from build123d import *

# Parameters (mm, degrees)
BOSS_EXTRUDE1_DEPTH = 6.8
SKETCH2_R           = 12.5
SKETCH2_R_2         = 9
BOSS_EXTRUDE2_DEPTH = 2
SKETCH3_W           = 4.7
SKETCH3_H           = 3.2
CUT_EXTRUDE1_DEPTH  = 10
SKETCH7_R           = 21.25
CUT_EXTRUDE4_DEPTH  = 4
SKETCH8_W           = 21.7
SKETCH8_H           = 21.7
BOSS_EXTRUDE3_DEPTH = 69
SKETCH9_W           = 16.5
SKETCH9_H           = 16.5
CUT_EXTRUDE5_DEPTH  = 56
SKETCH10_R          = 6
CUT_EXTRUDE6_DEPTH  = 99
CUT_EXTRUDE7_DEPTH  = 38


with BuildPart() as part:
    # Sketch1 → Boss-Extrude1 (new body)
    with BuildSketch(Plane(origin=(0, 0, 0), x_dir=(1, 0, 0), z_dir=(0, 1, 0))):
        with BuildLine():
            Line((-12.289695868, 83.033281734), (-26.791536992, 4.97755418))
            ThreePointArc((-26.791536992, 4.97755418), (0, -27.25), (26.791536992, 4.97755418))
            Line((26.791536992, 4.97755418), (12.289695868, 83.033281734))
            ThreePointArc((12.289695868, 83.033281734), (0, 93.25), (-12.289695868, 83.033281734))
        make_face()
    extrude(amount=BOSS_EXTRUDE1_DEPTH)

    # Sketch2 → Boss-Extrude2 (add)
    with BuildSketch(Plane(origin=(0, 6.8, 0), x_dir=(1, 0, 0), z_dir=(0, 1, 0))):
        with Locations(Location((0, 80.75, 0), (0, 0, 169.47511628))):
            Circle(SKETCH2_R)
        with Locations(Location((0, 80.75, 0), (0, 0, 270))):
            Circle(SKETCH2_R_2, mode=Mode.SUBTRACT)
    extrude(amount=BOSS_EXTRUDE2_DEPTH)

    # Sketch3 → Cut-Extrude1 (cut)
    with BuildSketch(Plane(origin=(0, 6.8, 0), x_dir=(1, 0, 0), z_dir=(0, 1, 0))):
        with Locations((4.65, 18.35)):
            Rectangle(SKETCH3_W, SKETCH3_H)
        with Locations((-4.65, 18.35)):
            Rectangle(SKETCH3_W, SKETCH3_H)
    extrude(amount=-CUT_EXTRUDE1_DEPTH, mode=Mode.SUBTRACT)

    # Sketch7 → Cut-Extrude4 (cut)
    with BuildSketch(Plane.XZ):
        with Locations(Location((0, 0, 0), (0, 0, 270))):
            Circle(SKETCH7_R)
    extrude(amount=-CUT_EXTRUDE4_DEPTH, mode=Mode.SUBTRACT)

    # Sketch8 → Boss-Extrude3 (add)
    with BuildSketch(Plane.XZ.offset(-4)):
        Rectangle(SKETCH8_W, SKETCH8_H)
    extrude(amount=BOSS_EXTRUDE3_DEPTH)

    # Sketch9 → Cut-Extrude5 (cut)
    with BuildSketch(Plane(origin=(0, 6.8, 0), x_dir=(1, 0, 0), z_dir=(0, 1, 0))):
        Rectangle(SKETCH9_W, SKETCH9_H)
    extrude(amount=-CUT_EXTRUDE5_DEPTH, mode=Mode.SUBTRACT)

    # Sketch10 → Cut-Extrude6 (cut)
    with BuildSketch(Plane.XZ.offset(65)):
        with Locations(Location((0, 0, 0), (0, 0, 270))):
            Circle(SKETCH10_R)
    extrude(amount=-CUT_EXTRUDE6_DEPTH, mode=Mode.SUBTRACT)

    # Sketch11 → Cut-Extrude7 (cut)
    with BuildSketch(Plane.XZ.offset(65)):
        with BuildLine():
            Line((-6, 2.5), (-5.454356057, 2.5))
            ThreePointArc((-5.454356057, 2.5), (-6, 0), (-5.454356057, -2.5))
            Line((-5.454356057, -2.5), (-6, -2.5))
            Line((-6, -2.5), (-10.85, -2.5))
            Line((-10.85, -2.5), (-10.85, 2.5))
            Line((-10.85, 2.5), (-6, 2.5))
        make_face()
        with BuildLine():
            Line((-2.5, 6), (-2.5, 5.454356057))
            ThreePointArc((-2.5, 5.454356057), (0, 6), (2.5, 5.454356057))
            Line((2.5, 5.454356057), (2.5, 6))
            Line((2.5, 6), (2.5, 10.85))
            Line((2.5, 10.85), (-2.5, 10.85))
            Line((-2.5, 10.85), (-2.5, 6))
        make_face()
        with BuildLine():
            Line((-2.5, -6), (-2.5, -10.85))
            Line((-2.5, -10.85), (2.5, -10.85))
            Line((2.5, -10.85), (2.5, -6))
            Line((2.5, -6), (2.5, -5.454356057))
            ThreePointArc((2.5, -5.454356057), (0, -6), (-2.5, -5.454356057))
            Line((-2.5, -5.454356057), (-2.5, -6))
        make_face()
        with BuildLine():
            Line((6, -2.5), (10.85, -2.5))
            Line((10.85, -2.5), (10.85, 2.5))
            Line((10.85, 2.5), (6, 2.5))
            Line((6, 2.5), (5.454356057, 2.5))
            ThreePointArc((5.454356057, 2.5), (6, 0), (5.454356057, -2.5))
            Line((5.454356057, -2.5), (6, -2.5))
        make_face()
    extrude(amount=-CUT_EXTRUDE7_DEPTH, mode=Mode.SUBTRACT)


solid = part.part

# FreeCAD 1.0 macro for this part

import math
import FreeCAD as App
import Part
import Sketcher


def add_polygon(sketch, points):
    """Adds a closed chain of lines whose ends are joined by coincident constraints."""
    first, n = sketch.GeometryCount, len(points)
    for a, b in zip(points, points[1:] + points[:1]):
        sketch.addGeometry(Part.LineSegment(App.Vector(*a, 0), App.Vector(*b, 0)), False)
    for i in range(n):
        sketch.addConstraint(Sketcher.Constraint("Coincident", first + i, 2, first + (i + 1) % n, 1))

doc = App.newDocument("Part")
body = doc.addObject("PartDesign::Body", "Body")

# Sketch on XZ plane
sketch1 = body.newObject("Sketcher::SketchObject", "Sketch")
sketch1.AttachmentSupport = (doc.getObject("XZ_Plane"), [""])
sketch1.MapMode = "FlatFace"
sketch1.addGeometry([
    Part.LineSegment(App.Vector(-12, -83, 0), App.Vector(-27, -5, 0)),
    Part.ArcOfCircle(Part.Circle(App.Vector(0, 0, 0), App.Vector(0, 0, 1), 27), math.radians(-11), math.radians(191)),
    Part.LineSegment(App.Vector(27, -5, 0), App.Vector(12, -83, 0)),
    Part.ArcOfCircle(Part.Circle(App.Vector(0, -81, 0), App.Vector(0, 0, 1), 12), math.radians(-169), math.radians(-11)),
], False)
sketch1.addConstraint([
    Sketcher.Constraint("Tangent", 0, 2, 1, 2),
    Sketcher.Constraint("Tangent", 1, 1, 2, 1),
    Sketcher.Constraint("Tangent", 2, 2, 3, 2),
    Sketcher.Constraint("Tangent", 3, 1, 0, 1),
    Sketcher.Constraint("Coincident", 1, 3, -1, 1),
    Sketcher.Constraint("PointOnObject", 3, 3, -2),
    Sketcher.Constraint("Radius", 3, 12.5),
    Sketcher.Constraint("Radius", 1, 27.25),
    Sketcher.Constraint("DistanceY", 3, 3, -1, 1, 80.75),
])
pad1 = body.newObject("PartDesign::Pad", "Pad")
pad1.Profile = sketch1
pad1.Length = 6.8
pad1.Reversed = True

# Sketch on XZ plane
sketch2 = body.newObject("Sketcher::SketchObject", "Sketch001")
sketch2.AttachmentSupport = (doc.getObject("XZ_Plane"), [""])
sketch2.MapMode = "FlatFace"
sketch2.AttachmentOffset = App.Placement(App.Vector(0, 0, -6.8), App.Rotation())
sketch2.addGeometry([
    Part.Circle(App.Vector(0, -81, 0), App.Vector(0, 0, 1), 12),
    Part.Circle(App.Vector(0, -81, 0), App.Vector(0, 0, 1), 9),
], False)
sketch2.addConstraint([
    Sketcher.Constraint("Coincident", 1, 3, 0, 3),
    Sketcher.Constraint("PointOnObject", 0, 3, -2),
    Sketcher.Constraint("Diameter", 0, 25.0),
    Sketcher.Constraint("Diameter", 1, 18.0),
    Sketcher.Constraint("DistanceY", 0, 3, -1, 1, 80.75),
])
pad2 = body.newObject("PartDesign::Pad", "Pad001")
pad2.Profile = sketch2
pad2.Length = 2
pad2.Reversed = True

# Sketch on XZ plane
sketch3 = body.newObject("Sketcher::SketchObject", "Sketch002")
sketch3.AttachmentSupport = (doc.getObject("XZ_Plane"), [""])
sketch3.MapMode = "FlatFace"
sketch3.AttachmentOffset = App.Placement(App.Vector(0, 0, -6.8), App.Rotation())
add_polygon(sketch3, [(2.3, -19.9), (2.3, -16.8), (7, -16.8), (7, -19.9)])  # lines 0-3
add_polygon(sketch3, [(-7, -19.9), (-7, -16.8), (-2.3, -16.8), (-2.3, -19.9)])  # lines 4-7
sketch3.addConstraint([
    Sketcher.Constraint("Vertical", 0),
    Sketcher.Constraint("Horizontal", 1),
    Sketcher.Constraint("Vertical", 2),
    Sketcher.Constraint("Horizontal", 3),
    Sketcher.Constraint("Vertical", 4),
    Sketcher.Constraint("Horizontal", 5),
    Sketcher.Constraint("Vertical", 6),
    Sketcher.Constraint("Horizontal", 7),
    Sketcher.Constraint("Symmetric", 1, 2, 4, 2, -2),
    Sketcher.Constraint("Symmetric", 3, 2, 6, 2, -2),
    Sketcher.Constraint("DistanceX", 1, 1, 1, 2, 4.7),
    Sketcher.Constraint("DistanceY", 0, 1, 0, 2, 3.2),
    Sketcher.Constraint("DistanceX", -1, 1, 1, 2, 7.0),
    Sketcher.Constraint("DistanceY", 0, 2, -1, 1, 16.75),
])
pocket1 = body.newObject("PartDesign::Pocket", "Pocket")
pocket1.Profile = sketch3
pocket1.Length = 10
pocket1.Reversed = True

# Sketch on XZ plane
sketch4 = body.newObject("Sketcher::SketchObject", "Sketch003")
sketch4.AttachmentSupport = (doc.getObject("XZ_Plane"), [""])
sketch4.MapMode = "FlatFace"
sketch4.addGeometry(Part.Circle(App.Vector(0, 0, 0), App.Vector(0, 0, 1), 21), False)
sketch4.addConstraint([
    Sketcher.Constraint("Coincident", 0, 3, -1, 1),
    Sketcher.Constraint("Diameter", 0, 42.5),
])
pocket2 = body.newObject("PartDesign::Pocket", "Pocket001")
pocket2.Profile = sketch4
pocket2.Length = 4

# Sketch on XZ plane
sketch5 = body.newObject("Sketcher::SketchObject", "Sketch004")
sketch5.AttachmentSupport = (doc.getObject("XZ_Plane"), [""])
sketch5.MapMode = "FlatFace"
sketch5.AttachmentOffset = App.Placement(App.Vector(0, 0, -4), App.Rotation())
add_polygon(sketch5, [(-11, 11), (-11, -11), (11, -11), (11, 11)])  # lines 0-3
sketch5.addConstraint([
    Sketcher.Constraint("Vertical", 0),
    Sketcher.Constraint("Horizontal", 1),
    Sketcher.Constraint("Vertical", 2),
    Sketcher.Constraint("Horizontal", 3),
    Sketcher.Constraint("Symmetric", 0, 2, 2, 2, -1, 1),
    Sketcher.Constraint("Equal", 3, 0),
    Sketcher.Constraint("DistanceX", 1, 1, 1, 2, 21.7),
])
pad3 = body.newObject("PartDesign::Pad", "Pad002")
pad3.Profile = sketch5
pad3.Length = 69

# Sketch on XZ plane
sketch6 = body.newObject("Sketcher::SketchObject", "Sketch005")
sketch6.AttachmentSupport = (doc.getObject("XZ_Plane"), [""])
sketch6.MapMode = "FlatFace"
sketch6.AttachmentOffset = App.Placement(App.Vector(0, 0, -6.8), App.Rotation())
add_polygon(sketch6, [(-8, -8), (-8, 8), (8, 8), (8, -8)])  # lines 0-3
sketch6.addConstraint([
    Sketcher.Constraint("Vertical", 0),
    Sketcher.Constraint("Horizontal", 1),
    Sketcher.Constraint("Vertical", 2),
    Sketcher.Constraint("Horizontal", 3),
    Sketcher.Constraint("Symmetric", 0, 2, 2, 2, -1, 1),
    Sketcher.Constraint("Equal", 3, 0),
    Sketcher.Constraint("DistanceX", 1, 1, 1, 2, 16.5),
])
pocket3 = body.newObject("PartDesign::Pocket", "Pocket002")
pocket3.Profile = sketch6
pocket3.Length = 56
pocket3.Reversed = True

# Sketch on XZ plane
sketch7 = body.newObject("Sketcher::SketchObject", "Sketch006")
sketch7.AttachmentSupport = (doc.getObject("XZ_Plane"), [""])
sketch7.MapMode = "FlatFace"
sketch7.AttachmentOffset = App.Placement(App.Vector(0, 0, 65), App.Rotation())
sketch7.addGeometry(Part.Circle(App.Vector(0, 0, 0), App.Vector(0, 0, 1), 6), False)
sketch7.addConstraint([
    Sketcher.Constraint("Coincident", 0, 3, -1, 1),
    Sketcher.Constraint("Diameter", 0, 12.0),
])
pocket4 = body.newObject("PartDesign::Pocket", "Pocket003")
pocket4.Profile = sketch7
pocket4.Length = 99

# Sketch on XZ plane
sketch8 = body.newObject("Sketcher::SketchObject", "Sketch007")
sketch8.AttachmentSupport = (doc.getObject("XZ_Plane"), [""])
sketch8.MapMode = "FlatFace"
sketch8.AttachmentOffset = App.Placement(App.Vector(0, 0, 65), App.Rotation())
sketch8.addGeometry([
    Part.ArcOfCircle(Part.Circle(App.Vector(0, 0, 0), App.Vector(0, 0, 1), 6), math.radians(155), math.radians(205)),  # 0
    Part.LineSegment(App.Vector(-5, 2, 0), App.Vector(-11, 2, 0)),  # 1
    Part.LineSegment(App.Vector(-11, 2, 0), App.Vector(-11, -2, 0)),  # 2
    Part.LineSegment(App.Vector(-11, -2, 0), App.Vector(-5, -2, 0)),  # 3
    Part.ArcOfCircle(Part.Circle(App.Vector(0, 0, 0), App.Vector(0, 0, 1), 6), math.radians(65), math.radians(115)),  # 4
    Part.LineSegment(App.Vector(2, 5, 0), App.Vector(2, 11, 0)),  # 5
    Part.LineSegment(App.Vector(2, 11, 0), App.Vector(-2, 11, 0)),  # 6
    Part.LineSegment(App.Vector(-2, 11, 0), App.Vector(-2, 5, 0)),  # 7
    Part.LineSegment(App.Vector(-2, -11, 0), App.Vector(2, -11, 0)),  # 8
    Part.LineSegment(App.Vector(2, -11, 0), App.Vector(2, -5, 0)),  # 9
    Part.ArcOfCircle(Part.Circle(App.Vector(0, 0, 0), App.Vector(0, 0, 1), 6), math.radians(-115), math.radians(-65)),  # 10
    Part.LineSegment(App.Vector(-2, -5, 0), App.Vector(-2, -11, 0)),  # 11
    Part.LineSegment(App.Vector(11, -2, 0), App.Vector(11, 2, 0)),  # 12
    Part.LineSegment(App.Vector(11, 2, 0), App.Vector(5, 2, 0)),  # 13
    Part.ArcOfCircle(Part.Circle(App.Vector(0, 0, 0), App.Vector(0, 0, 1), 6), math.radians(-25), math.radians(25)),  # 14
    Part.LineSegment(App.Vector(5, -2, 0), App.Vector(11, -2, 0)),  # 15
], False)
sketch8.addConstraint([
    Sketcher.Constraint("Coincident", 0, 1, 1, 1),
    Sketcher.Constraint("Coincident", 1, 2, 2, 1),
    Sketcher.Constraint("Coincident", 2, 2, 3, 1),
    Sketcher.Constraint("Coincident", 3, 2, 0, 2),
    Sketcher.Constraint("Coincident", 4, 1, 5, 1),
    Sketcher.Constraint("Coincident", 5, 2, 6, 1),
    Sketcher.Constraint("Coincident", 6, 2, 7, 1),
    Sketcher.Constraint("Coincident", 7, 2, 4, 2),
    Sketcher.Constraint("Coincident", 8, 2, 9, 1),
    Sketcher.Constraint("Coincident", 9, 2, 10, 2),
    Sketcher.Constraint("Coincident", 10, 1, 11, 1),
    Sketcher.Constraint("Coincident", 11, 2, 8, 1),
    Sketcher.Constraint("Coincident", 12, 2, 13, 1),
    Sketcher.Constraint("Coincident", 13, 2, 14, 2),
    Sketcher.Constraint("Coincident", 14, 1, 15, 1),
    Sketcher.Constraint("Coincident", 15, 2, 12, 1),
    Sketcher.Constraint("Horizontal", 1),
    Sketcher.Constraint("Vertical", 2),
    Sketcher.Constraint("Horizontal", 3),
    Sketcher.Constraint("Vertical", 5),
    Sketcher.Constraint("Horizontal", 6),
    Sketcher.Constraint("Vertical", 7),
    Sketcher.Constraint("Horizontal", 8),
    Sketcher.Constraint("Vertical", 9),
    Sketcher.Constraint("Vertical", 11),
    Sketcher.Constraint("Vertical", 12),
    Sketcher.Constraint("Horizontal", 13),
    Sketcher.Constraint("Horizontal", 15),
    Sketcher.Constraint("Coincident", 0, 3, -1, 1),
    Sketcher.Constraint("Coincident", 4, 3, -1, 1),
    Sketcher.Constraint("Coincident", 10, 3, -1, 1),
    Sketcher.Constraint("Coincident", 14, 3, -1, 1),
    Sketcher.Constraint("Equal", 0, 4),
    Sketcher.Constraint("Equal", 4, 10),
    Sketcher.Constraint("Equal", 10, 14),
    Sketcher.Constraint("Symmetric", 6, 2, 8, 2, -1, 1),
    Sketcher.Constraint("Symmetric", 2, 2, 12, 2, -1, 1),
    Sketcher.Constraint("Horizontal", 4, 1, 7, 2),
    Sketcher.Constraint("Horizontal", 9, 2, 10, 1),
    Sketcher.Constraint("Horizontal", 1, 2, 12, 2),
    Sketcher.Constraint("Horizontal", 3, 2, 14, 1),
    Sketcher.Constraint("Equal", 8, 2),
    Sketcher.Constraint("Equal", 15, 5),
    Sketcher.Constraint("Radius", 0, 6.0),
    Sketcher.Constraint("DistanceX", 6, 2, 6, 1, 5.0),
    Sketcher.Constraint("DistanceX", 1, 2, -1, 1, 10.85),
])
pocket5 = body.newObject("PartDesign::Pocket", "Pocket004")
pocket5.Profile = sketch8
pocket5.Length = 38

doc.recompute()
